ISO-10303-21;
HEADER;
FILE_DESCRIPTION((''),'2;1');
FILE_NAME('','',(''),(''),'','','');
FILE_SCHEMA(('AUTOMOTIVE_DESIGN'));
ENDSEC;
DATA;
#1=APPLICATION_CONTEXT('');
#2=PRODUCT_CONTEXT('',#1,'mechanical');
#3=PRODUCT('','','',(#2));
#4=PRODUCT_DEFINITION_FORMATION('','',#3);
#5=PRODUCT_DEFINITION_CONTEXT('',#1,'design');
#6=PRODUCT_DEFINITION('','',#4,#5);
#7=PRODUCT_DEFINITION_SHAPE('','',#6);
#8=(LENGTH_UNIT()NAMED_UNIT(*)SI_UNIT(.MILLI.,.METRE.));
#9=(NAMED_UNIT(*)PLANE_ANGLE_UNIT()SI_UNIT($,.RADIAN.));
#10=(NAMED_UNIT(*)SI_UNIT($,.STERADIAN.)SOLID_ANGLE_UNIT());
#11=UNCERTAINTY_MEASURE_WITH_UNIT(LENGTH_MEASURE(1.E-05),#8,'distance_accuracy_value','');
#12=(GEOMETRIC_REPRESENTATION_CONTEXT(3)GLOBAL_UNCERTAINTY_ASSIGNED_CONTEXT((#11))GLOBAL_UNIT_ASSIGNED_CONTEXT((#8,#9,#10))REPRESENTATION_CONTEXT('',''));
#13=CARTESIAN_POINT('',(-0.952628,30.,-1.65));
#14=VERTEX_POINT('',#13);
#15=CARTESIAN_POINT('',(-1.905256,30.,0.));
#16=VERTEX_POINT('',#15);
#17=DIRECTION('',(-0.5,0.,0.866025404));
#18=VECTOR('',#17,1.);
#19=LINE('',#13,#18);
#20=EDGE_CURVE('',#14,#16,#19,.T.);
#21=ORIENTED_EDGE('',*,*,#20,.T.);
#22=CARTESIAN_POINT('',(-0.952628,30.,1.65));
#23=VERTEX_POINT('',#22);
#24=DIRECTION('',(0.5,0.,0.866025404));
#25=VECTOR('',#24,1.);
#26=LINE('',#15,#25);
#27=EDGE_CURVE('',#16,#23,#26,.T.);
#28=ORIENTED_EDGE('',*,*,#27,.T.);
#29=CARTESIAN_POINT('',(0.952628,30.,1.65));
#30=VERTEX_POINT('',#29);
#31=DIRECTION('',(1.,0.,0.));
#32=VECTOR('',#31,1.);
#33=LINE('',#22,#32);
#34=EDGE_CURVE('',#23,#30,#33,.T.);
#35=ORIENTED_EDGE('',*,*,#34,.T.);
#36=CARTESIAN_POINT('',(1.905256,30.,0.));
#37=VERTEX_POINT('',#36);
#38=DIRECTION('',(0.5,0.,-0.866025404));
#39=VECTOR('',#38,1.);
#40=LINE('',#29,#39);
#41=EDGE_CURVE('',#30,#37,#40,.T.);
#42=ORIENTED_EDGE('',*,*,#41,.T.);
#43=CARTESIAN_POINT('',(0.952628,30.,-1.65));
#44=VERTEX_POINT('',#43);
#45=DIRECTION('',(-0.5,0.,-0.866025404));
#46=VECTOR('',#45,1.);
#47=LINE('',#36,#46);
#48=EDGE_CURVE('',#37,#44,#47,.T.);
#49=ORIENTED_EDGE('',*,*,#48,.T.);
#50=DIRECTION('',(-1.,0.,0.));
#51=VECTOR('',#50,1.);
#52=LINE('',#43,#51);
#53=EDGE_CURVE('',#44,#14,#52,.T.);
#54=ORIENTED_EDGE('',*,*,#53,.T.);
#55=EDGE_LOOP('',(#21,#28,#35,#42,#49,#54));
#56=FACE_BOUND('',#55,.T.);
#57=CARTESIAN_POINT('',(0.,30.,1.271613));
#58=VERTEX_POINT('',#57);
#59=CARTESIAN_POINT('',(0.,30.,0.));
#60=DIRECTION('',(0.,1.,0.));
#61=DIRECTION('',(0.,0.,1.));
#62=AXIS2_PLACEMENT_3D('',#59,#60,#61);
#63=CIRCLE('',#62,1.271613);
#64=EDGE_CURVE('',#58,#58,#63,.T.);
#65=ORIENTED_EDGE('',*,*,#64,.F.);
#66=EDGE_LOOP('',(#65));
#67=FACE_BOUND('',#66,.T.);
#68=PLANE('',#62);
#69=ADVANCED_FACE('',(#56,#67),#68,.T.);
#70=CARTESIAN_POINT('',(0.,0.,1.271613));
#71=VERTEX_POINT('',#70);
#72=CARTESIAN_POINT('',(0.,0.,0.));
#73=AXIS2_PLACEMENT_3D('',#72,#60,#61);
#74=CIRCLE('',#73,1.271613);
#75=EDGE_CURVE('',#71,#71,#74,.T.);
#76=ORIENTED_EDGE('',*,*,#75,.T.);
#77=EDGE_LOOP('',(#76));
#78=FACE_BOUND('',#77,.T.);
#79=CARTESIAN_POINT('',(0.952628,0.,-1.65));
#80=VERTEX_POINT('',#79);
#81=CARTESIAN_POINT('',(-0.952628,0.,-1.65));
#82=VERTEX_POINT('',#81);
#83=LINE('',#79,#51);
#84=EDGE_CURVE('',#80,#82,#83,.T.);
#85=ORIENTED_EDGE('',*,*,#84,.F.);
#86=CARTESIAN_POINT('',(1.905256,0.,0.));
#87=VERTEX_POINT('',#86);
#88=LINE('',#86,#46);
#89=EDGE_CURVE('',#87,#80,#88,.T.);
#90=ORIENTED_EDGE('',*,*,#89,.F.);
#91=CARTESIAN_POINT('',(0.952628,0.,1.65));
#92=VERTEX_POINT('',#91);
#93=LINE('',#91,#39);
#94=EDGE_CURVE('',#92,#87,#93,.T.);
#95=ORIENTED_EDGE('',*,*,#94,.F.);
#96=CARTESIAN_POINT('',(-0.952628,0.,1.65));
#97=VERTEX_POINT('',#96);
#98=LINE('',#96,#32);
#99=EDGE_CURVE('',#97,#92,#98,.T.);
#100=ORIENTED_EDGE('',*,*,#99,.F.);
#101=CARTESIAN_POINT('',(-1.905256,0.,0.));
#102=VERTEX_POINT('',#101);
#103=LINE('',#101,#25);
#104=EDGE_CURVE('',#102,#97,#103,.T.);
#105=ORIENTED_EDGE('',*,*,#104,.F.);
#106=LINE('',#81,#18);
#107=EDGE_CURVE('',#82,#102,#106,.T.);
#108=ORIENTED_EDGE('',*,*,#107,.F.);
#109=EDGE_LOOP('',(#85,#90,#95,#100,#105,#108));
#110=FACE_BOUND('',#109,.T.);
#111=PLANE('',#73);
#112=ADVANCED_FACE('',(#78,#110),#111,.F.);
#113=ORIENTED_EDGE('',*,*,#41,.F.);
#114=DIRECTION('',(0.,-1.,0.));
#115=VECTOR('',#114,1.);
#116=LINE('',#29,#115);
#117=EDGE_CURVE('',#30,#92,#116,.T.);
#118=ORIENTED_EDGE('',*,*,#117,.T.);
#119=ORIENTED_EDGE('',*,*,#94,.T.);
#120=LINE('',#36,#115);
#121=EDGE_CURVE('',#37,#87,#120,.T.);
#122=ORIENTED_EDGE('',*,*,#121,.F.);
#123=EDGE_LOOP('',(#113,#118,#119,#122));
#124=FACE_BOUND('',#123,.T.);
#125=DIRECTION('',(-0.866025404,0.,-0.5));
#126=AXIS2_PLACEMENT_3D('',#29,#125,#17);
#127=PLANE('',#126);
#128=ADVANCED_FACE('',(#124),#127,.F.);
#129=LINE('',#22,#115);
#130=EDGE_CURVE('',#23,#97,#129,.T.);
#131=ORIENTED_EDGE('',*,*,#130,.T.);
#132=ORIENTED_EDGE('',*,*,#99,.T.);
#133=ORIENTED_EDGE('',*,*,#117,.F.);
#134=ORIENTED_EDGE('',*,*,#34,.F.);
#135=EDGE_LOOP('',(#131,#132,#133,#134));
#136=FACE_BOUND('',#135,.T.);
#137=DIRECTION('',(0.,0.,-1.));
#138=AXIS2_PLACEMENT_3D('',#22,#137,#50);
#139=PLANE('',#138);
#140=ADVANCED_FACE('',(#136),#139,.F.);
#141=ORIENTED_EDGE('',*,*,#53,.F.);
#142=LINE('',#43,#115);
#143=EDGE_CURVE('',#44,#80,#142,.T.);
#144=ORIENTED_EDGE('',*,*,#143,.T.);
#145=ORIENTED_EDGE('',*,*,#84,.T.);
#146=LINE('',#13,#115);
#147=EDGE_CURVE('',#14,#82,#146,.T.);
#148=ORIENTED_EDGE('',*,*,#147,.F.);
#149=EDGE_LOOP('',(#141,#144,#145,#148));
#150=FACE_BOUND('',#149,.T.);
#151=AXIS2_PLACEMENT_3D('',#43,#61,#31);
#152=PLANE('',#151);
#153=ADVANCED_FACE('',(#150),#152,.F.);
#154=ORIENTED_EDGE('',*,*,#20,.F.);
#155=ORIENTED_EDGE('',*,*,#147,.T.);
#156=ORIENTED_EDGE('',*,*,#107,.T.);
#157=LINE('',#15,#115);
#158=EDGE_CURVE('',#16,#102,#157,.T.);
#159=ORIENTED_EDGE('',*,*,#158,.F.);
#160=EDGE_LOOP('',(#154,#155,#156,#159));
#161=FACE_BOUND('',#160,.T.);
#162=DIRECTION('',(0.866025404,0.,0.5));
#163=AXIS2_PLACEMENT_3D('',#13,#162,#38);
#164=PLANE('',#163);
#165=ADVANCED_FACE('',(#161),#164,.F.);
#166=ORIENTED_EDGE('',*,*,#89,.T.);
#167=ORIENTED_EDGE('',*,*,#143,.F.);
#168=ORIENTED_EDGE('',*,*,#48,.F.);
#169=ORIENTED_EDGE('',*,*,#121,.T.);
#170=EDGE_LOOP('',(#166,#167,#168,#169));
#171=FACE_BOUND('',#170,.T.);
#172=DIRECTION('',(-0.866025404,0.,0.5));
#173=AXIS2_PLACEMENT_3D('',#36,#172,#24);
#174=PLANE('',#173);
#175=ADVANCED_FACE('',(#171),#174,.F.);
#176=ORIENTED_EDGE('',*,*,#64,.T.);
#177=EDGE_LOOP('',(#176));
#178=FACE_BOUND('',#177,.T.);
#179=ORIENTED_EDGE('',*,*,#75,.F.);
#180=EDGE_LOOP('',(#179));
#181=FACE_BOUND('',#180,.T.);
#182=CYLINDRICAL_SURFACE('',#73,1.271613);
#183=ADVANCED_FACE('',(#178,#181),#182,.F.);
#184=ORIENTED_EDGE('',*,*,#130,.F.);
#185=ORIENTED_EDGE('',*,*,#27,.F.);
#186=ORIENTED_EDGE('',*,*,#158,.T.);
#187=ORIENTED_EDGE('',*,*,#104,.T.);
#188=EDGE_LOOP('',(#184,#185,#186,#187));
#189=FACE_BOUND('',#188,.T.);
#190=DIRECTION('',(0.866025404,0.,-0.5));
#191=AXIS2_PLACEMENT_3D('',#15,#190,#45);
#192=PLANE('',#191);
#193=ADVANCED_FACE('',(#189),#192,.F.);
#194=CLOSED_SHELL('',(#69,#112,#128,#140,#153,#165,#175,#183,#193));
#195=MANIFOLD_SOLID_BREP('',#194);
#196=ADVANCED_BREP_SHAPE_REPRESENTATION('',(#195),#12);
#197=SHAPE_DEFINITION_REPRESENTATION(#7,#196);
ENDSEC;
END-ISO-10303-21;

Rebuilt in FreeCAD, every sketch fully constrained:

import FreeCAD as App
import Part
import Sketcher
from FreeCAD import Vector
Q = App.Units.Quantity

doc = App.newDocument("Part")
params = doc.addObject("Spreadsheet::Sheet", "Params")
for row, (alias, value) in enumerate([
    ("pad1_length", "30 mm"),
    ("pocket1_length", "30 mm"),
], start=1):
    params.set(f"A{row}", alias)
    params.set(f"B{row}", "=" + value)
    params.setAlias(f"B{row}", alias)

body = doc.addObject("PartDesign::Body", "Body")

sketch1 = doc.addObject("Sketcher::SketchObject", "Sketch")
body.addObject(sketch1)
sketch1.AttachmentSupport = (doc.XZ_Plane, [""])
sketch1.MapMode = "FlatFace"
sketch1.addGeometry([
    Part.LineSegment(Vector(1.9, 0, 0), Vector(1, -1.6, 0)),
    Part.LineSegment(Vector(1, -1.6, 0), Vector(-1, -1.6, 0)),
    Part.LineSegment(Vector(-1, -1.6, 0), Vector(-1.9, 0, 0)),
    Part.LineSegment(Vector(-1.9, 0, 0), Vector(-1, 1.6, 0)),
    Part.LineSegment(Vector(-1, 1.6, 0), Vector(1, 1.6, 0)),
    Part.LineSegment(Vector(1, 1.6, 0), Vector(1.9, 0, 0)),
], False)
sketch1.addConstraint([
    Sketcher.Constraint("Coincident", 0, 2, 1, 1),
    Sketcher.Constraint("Coincident", 1, 2, 2, 1),
    Sketcher.Constraint("Coincident", 2, 2, 3, 1),
    Sketcher.Constraint("Coincident", 3, 2, 4, 1),
    Sketcher.Constraint("Coincident", 4, 2, 5, 1),
    Sketcher.Constraint("Coincident", 5, 2, 0, 1),
    Sketcher.Constraint("Horizontal", 1),
    Sketcher.Constraint("Horizontal", 4),
    Sketcher.Constraint("Symmetric", 0, 2, 3, 2, -1, 1),
    Sketcher.Constraint("Symmetric", 2, 2, 5, 2, -1, 1),
    Sketcher.Constraint("PointOnObject", 2, 2, -1),
    Sketcher.Constraint("Parallel", 2, 5),
    Sketcher.Constraint("Vertical", 1, 2, 3, 2),
    Sketcher.Constraint("Angle", 0, Q("-120 deg")),
    Sketcher.Constraint("DistanceY", 1, 2, 3, 2, 3.3),
    Sketcher.Constraint("DistanceX", 1, 2, 1, 1, 1.905256),
])
pad1 = doc.addObject("PartDesign::Pad", "Pad")
body.addObject(pad1)
pad1.Profile = sketch1
pad1.setExpression("Length", "Params.pad1_length")
pad1.Reversed = True

sketch2 = doc.addObject("Sketcher::SketchObject", "Sketch001")
body.addObject(sketch2)
sketch2.AttachmentSupport = (doc.XZ_Plane, [""])
sketch2.MapMode = "FlatFace"
sketch2.AttachmentOffset = App.Placement(Vector(0, 0, -30), App.Rotation())
sketch2.addGeometry(Part.Circle(Vector(0, 0, 0), Vector(0, 0, 1), 1.3), False)
sketch2.addConstraint([
    Sketcher.Constraint("Coincident", 0, 3, -1, 1),
    Sketcher.Constraint("Diameter", 0, 2.543226),
])
pocket1 = doc.addObject("PartDesign::Pocket", "Pocket")
body.addObject(pocket1)
pocket1.Profile = sketch2
pocket1.setExpression("Length", "Params.pocket1_length")
pocket1.Reversed = True

doc.recompute()
